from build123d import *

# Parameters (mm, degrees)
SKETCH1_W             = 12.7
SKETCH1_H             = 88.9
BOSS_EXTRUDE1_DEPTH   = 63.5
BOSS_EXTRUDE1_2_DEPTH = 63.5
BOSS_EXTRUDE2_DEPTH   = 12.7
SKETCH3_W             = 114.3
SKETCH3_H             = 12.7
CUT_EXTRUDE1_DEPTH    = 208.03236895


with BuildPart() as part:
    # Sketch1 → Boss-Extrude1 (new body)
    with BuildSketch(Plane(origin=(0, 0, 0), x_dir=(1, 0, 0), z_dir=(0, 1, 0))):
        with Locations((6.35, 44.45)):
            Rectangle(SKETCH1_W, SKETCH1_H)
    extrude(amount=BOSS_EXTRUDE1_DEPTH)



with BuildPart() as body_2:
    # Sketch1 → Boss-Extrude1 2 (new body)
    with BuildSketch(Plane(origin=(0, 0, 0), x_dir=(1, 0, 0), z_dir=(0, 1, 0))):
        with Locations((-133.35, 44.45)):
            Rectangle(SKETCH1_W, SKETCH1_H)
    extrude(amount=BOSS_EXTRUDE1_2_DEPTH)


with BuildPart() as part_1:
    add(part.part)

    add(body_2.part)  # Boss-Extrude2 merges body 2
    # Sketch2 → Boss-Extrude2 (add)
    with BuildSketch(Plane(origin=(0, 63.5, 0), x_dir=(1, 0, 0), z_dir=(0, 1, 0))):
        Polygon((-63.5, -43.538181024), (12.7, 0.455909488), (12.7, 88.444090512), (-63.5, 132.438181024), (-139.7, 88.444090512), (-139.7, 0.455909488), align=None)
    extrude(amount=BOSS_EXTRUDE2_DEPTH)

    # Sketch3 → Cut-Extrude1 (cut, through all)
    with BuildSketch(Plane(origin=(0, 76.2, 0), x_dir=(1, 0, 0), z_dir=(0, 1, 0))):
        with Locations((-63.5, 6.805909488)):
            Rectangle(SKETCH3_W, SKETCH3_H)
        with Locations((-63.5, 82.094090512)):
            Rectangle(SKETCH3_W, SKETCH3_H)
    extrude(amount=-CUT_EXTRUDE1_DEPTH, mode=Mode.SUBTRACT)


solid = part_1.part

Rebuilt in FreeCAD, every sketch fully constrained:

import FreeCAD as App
import Part
import Sketcher
from FreeCAD import Vector
Q = App.Units.Quantity

doc = App.newDocument("Part")
params = doc.addObject("Spreadsheet::Sheet", "Params")
for row, (alias, value) in enumerate([
    ("sketch1_width", "0.5 in"),
    ("sketch1_height", "3.5 in"),
    ("pad1_length", "2.5 in"),
    ("sketch2_width", "0.5 in"),
    ("sketch2_height", "3.5 in"),
    ("pad2_length", "2.5 in"),
    ("pad3_length", "0.5 in"),
    ("sketch4_width", "4.5 in"),
    ("sketch4_height", "0.5 in"),
], start=1):
    params.set(f"A{row}", alias)
    params.set(f"B{row}", "=" + value)
    params.setAlias(f"B{row}", alias)

body = doc.addObject("PartDesign::Body", "Body")

sketch1 = body.newObject("Sketcher::SketchObject", "Sketch")
sketch1.AttachmentSupport = (doc.getObject("XZ_Plane"), [""])
sketch1.MapMode = "FlatFace"
sketch1.addGeometry(Part.LineSegment(Vector(0, -89, 0), Vector(0, 0, 0)), False)
sketch1.addGeometry(Part.LineSegment(Vector(0, 0, 0), Vector(13, 0, 0)), False)
sketch1.addGeometry(Part.LineSegment(Vector(13, 0, 0), Vector(13, -89, 0)), False)
sketch1.addGeometry(Part.LineSegment(Vector(13, -89, 0), Vector(0, -89, 0)), False)
sketch1.addConstraint(Sketcher.Constraint("Coincident", 0, 2, 1, 1))
sketch1.addConstraint(Sketcher.Constraint("Coincident", 1, 2, 2, 1))
sketch1.addConstraint(Sketcher.Constraint("Coincident", 2, 2, 3, 1))
sketch1.addConstraint(Sketcher.Constraint("Coincident", 3, 2, 0, 1))
sketch1.addConstraint(Sketcher.Constraint("Vertical", 0))
sketch1.addConstraint(Sketcher.Constraint("Horizontal", 1))
sketch1.addConstraint(Sketcher.Constraint("Vertical", 2))
sketch1.addConstraint(Sketcher.Constraint("Horizontal", 3))
sketch1.addConstraint(Sketcher.Constraint("Coincident", 0, 2, -1, 1))
sketch1.addConstraint(Sketcher.Constraint("DistanceX", 1, 1, 1, 2, Q("0.5 in")))
sketch1.addConstraint(Sketcher.Constraint("DistanceY", 0, 1, 0, 2, Q("3.5 in")))
sketch1.setExpression("Constraints[9]", "Params.sketch1_width")
sketch1.setExpression("Constraints[10]", "Params.sketch1_height")
pad1 = body.newObject("PartDesign::Pad", "Pad")
pad1.Profile = sketch1
pad1.setExpression("Length", "Params.pad1_length")
pad1.Reversed = True
body2 = doc.addObject("PartDesign::Body", "Body001")

sketch2 = body2.newObject("Sketcher::SketchObject", "Sketch001")
sketch2.AttachmentSupport = (doc.getObject("XZ_Plane001"), [""])
sketch2.MapMode = "FlatFace"
sketch2.addGeometry(Part.LineSegment(Vector(-140, -89, 0), Vector(-140, 0, 0)), False)
sketch2.addGeometry(Part.LineSegment(Vector(-140, 0, 0), Vector(-127, 0, 0)), False)
sketch2.addGeometry(Part.LineSegment(Vector(-127, 0, 0), Vector(-127, -89, 0)), False)
sketch2.addGeometry(Part.LineSegment(Vector(-127, -89, 0), Vector(-140, -89, 0)), False)
sketch2.addConstraint(Sketcher.Constraint("Coincident", 0, 2, 1, 1))
sketch2.addConstraint(Sketcher.Constraint("Coincident", 1, 2, 2, 1))
sketch2.addConstraint(Sketcher.Constraint("Coincident", 2, 2, 3, 1))
sketch2.addConstraint(Sketcher.Constraint("Coincident", 3, 2, 0, 1))
sketch2.addConstraint(Sketcher.Constraint("Vertical", 0))
sketch2.addConstraint(Sketcher.Constraint("Horizontal", 1))
sketch2.addConstraint(Sketcher.Constraint("Vertical", 2))
sketch2.addConstraint(Sketcher.Constraint("Horizontal", 3))
sketch2.addConstraint(Sketcher.Constraint("PointOnObject", 0, 2, -1))
sketch2.addConstraint(Sketcher.Constraint("DistanceX", 1, 1, 1, 2, Q("0.5 in")))
sketch2.addConstraint(Sketcher.Constraint("DistanceY", 0, 1, 0, 2, Q("3.5 in")))
sketch2.addConstraint(Sketcher.Constraint("DistanceX", 1, 2, -1, 1, Q("5 in")))
sketch2.setExpression("Constraints[9]", "Params.sketch2_width")
sketch2.setExpression("Constraints[10]", "Params.sketch2_height")
pad2 = body2.newObject("PartDesign::Pad", "Pad001")
pad2.Profile = sketch2
pad2.setExpression("Length", "Params.pad2_length")
pad2.Reversed = True
body.AllowCompound = True
doc.recompute()

boolean = body.newObject("PartDesign::Boolean", "Boolean")
boolean.Type = "Fuse"
boolean.addObjects([body2])

sketch3 = body.newObject("Sketcher::SketchObject", "Sketch002")
sketch3.AttachmentSupport = (doc.getObject("XZ_Plane"), [""])
sketch3.MapMode = "FlatFace"
sketch3.AttachmentOffset = App.Placement(Vector(0, 0, -2.5 * 25.4), App.Rotation())
sketch3.addGeometry(Part.LineSegment(Vector(-64, 44, 0), Vector(13, 0, 0)), False)
sketch3.addGeometry(Part.LineSegment(Vector(13, 0, 0), Vector(13, -88, 0)), False)
sketch3.addGeometry(Part.LineSegment(Vector(13, -88, 0), Vector(-64, -132, 0)), False)
sketch3.addGeometry(Part.LineSegment(Vector(-64, -132, 0), Vector(-140, -88, 0)), False)
sketch3.addGeometry(Part.LineSegment(Vector(-140, -88, 0), Vector(-140, 0, 0)), False)
sketch3.addGeometry(Part.LineSegment(Vector(-140, 0, 0), Vector(-64, 44, 0)), False)
sketch3.addConstraint(Sketcher.Constraint("Coincident", 0, 2, 1, 1))
sketch3.addConstraint(Sketcher.Constraint("Coincident", 1, 2, 2, 1))
sketch3.addConstraint(Sketcher.Constraint("Coincident", 2, 2, 3, 1))
sketch3.addConstraint(Sketcher.Constraint("Coincident", 3, 2, 4, 1))
sketch3.addConstraint(Sketcher.Constraint("Coincident", 4, 2, 5, 1))
sketch3.addConstraint(Sketcher.Constraint("Coincident", 5, 2, 0, 1))
sketch3.addConstraint(Sketcher.Constraint("Vertical", 1))
sketch3.addConstraint(Sketcher.Constraint("Vertical", 4))
sketch3.addConstraint(Sketcher.Constraint("Parallel", 0, 3))
sketch3.addConstraint(Sketcher.Constraint("Parallel", 2, 5))
sketch3.addConstraint(Sketcher.Constraint("Horizontal", 1, 2, 3, 2))
sketch3.addConstraint(Sketcher.Constraint("Horizontal", 0, 2, 4, 2))
sketch3.addConstraint(Sketcher.Constraint("Vertical", 2, 2, 5, 2))
sketch3.addConstraint(Sketcher.Constraint("Angle", 0, Q("-30 deg")))
sketch3.addConstraint(Sketcher.Constraint("DistanceX", 2, 2, 1, 2, Q("3 in")))
sketch3.addConstraint(Sketcher.Constraint("DistanceX", -1, 1, 0, 2, Q("0.5 in")))
sketch3.addConstraint(Sketcher.Constraint("DistanceY", 1, 2, 1, 1, Q("87.988181 mm")))
sketch3.addConstraint(Sketcher.Constraint("DistanceY", 0, 2, -1, 1, Q("0.455909 mm")))
pad3 = body.newObject("PartDesign::Pad", "Pad002")
pad3.Profile = sketch3
pad3.setExpression("Length", "Params.pad3_length")
pad3.Reversed = True

sketch4 = body.newObject("Sketcher::SketchObject", "Sketch003")
sketch4.AttachmentSupport = (doc.getObject("XZ_Plane"), [""])
sketch4.MapMode = "FlatFace"
sketch4.AttachmentOffset = App.Placement(Vector(0, 0, -3 * 25.4), App.Rotation())
sketch4.addGeometry(Part.LineSegment(Vector(-121, -13, 0), Vector(-121, 0, 0)), False)
sketch4.addGeometry(Part.LineSegment(Vector(-121, 0, 0), Vector(-6, 0, 0)), False)
sketch4.addGeometry(Part.LineSegment(Vector(-6, 0, 0), Vector(-6, -13, 0)), False)
sketch4.addGeometry(Part.LineSegment(Vector(-6, -13, 0), Vector(-121, -13, 0)), False)
sketch4.addGeometry(Part.LineSegment(Vector(-121, -88, 0), Vector(-121, -76, 0)), False)
sketch4.addGeometry(Part.LineSegment(Vector(-121, -76, 0), Vector(-6, -76, 0)), False)
sketch4.addGeometry(Part.LineSegment(Vector(-6, -76, 0), Vector(-6, -88, 0)), False)
sketch4.addGeometry(Part.LineSegment(Vector(-6, -88, 0), Vector(-121, -88, 0)), False)
sketch4.addConstraint(Sketcher.Constraint("Coincident", 0, 2, 1, 1))
sketch4.addConstraint(Sketcher.Constraint("Coincident", 1, 2, 2, 1))
sketch4.addConstraint(Sketcher.Constraint("Coincident", 2, 2, 3, 1))
sketch4.addConstraint(Sketcher.Constraint("Coincident", 3, 2, 0, 1))
sketch4.addConstraint(Sketcher.Constraint("Coincident", 4, 2, 5, 1))
sketch4.addConstraint(Sketcher.Constraint("Coincident", 5, 2, 6, 1))
sketch4.addConstraint(Sketcher.Constraint("Coincident", 6, 2, 7, 1))
sketch4.addConstraint(Sketcher.Constraint("Coincident", 7, 2, 4, 1))
sketch4.addConstraint(Sketcher.Constraint("Vertical", 0))
sketch4.addConstraint(Sketcher.Constraint("Horizontal", 1))
sketch4.addConstraint(Sketcher.Constraint("Vertical", 2))
sketch4.addConstraint(Sketcher.Constraint("Horizontal", 3))
sketch4.addConstraint(Sketcher.Constraint("Vertical", 4))
sketch4.addConstraint(Sketcher.Constraint("Horizontal", 5))
sketch4.addConstraint(Sketcher.Constraint("Vertical", 6))
sketch4.addConstraint(Sketcher.Constraint("Horizontal", 7))
sketch4.addConstraint(Sketcher.Constraint("Vertical", 3, 2, 4, 2))
sketch4.addConstraint(Sketcher.Constraint("Vertical", 2, 2, 5, 2))
sketch4.addConstraint(Sketcher.Constraint("Equal", 2, 4))
sketch4.addConstraint(Sketcher.Constraint("DistanceX", 1, 1, 1, 2, Q("4.5 in")))
sketch4.addConstraint(Sketcher.Constraint("DistanceY", 0, 1, 0, 2, Q("0.5 in")))
sketch4.addConstraint(Sketcher.Constraint("DistanceX", 0, 2, -1, 1, Q("4.75 in")))
sketch4.addConstraint(Sketcher.Constraint("DistanceY", 0, 2, -1, 1, Q("0.455909 mm")))
sketch4.addConstraint(Sketcher.Constraint("DistanceY", 4, 2, -1, 1, Q("75.744091 mm")))
sketch4.setExpression("Constraints[19]", "Params.sketch4_width")
sketch4.setExpression("Constraints[20]", "Params.sketch4_height")
pocket1 = body.newObject("PartDesign::Pocket", "Pocket")
pocket1.Profile = sketch4
pocket1.Type = "ThroughAll"
pocket1.Reversed = True

doc.recompute()
